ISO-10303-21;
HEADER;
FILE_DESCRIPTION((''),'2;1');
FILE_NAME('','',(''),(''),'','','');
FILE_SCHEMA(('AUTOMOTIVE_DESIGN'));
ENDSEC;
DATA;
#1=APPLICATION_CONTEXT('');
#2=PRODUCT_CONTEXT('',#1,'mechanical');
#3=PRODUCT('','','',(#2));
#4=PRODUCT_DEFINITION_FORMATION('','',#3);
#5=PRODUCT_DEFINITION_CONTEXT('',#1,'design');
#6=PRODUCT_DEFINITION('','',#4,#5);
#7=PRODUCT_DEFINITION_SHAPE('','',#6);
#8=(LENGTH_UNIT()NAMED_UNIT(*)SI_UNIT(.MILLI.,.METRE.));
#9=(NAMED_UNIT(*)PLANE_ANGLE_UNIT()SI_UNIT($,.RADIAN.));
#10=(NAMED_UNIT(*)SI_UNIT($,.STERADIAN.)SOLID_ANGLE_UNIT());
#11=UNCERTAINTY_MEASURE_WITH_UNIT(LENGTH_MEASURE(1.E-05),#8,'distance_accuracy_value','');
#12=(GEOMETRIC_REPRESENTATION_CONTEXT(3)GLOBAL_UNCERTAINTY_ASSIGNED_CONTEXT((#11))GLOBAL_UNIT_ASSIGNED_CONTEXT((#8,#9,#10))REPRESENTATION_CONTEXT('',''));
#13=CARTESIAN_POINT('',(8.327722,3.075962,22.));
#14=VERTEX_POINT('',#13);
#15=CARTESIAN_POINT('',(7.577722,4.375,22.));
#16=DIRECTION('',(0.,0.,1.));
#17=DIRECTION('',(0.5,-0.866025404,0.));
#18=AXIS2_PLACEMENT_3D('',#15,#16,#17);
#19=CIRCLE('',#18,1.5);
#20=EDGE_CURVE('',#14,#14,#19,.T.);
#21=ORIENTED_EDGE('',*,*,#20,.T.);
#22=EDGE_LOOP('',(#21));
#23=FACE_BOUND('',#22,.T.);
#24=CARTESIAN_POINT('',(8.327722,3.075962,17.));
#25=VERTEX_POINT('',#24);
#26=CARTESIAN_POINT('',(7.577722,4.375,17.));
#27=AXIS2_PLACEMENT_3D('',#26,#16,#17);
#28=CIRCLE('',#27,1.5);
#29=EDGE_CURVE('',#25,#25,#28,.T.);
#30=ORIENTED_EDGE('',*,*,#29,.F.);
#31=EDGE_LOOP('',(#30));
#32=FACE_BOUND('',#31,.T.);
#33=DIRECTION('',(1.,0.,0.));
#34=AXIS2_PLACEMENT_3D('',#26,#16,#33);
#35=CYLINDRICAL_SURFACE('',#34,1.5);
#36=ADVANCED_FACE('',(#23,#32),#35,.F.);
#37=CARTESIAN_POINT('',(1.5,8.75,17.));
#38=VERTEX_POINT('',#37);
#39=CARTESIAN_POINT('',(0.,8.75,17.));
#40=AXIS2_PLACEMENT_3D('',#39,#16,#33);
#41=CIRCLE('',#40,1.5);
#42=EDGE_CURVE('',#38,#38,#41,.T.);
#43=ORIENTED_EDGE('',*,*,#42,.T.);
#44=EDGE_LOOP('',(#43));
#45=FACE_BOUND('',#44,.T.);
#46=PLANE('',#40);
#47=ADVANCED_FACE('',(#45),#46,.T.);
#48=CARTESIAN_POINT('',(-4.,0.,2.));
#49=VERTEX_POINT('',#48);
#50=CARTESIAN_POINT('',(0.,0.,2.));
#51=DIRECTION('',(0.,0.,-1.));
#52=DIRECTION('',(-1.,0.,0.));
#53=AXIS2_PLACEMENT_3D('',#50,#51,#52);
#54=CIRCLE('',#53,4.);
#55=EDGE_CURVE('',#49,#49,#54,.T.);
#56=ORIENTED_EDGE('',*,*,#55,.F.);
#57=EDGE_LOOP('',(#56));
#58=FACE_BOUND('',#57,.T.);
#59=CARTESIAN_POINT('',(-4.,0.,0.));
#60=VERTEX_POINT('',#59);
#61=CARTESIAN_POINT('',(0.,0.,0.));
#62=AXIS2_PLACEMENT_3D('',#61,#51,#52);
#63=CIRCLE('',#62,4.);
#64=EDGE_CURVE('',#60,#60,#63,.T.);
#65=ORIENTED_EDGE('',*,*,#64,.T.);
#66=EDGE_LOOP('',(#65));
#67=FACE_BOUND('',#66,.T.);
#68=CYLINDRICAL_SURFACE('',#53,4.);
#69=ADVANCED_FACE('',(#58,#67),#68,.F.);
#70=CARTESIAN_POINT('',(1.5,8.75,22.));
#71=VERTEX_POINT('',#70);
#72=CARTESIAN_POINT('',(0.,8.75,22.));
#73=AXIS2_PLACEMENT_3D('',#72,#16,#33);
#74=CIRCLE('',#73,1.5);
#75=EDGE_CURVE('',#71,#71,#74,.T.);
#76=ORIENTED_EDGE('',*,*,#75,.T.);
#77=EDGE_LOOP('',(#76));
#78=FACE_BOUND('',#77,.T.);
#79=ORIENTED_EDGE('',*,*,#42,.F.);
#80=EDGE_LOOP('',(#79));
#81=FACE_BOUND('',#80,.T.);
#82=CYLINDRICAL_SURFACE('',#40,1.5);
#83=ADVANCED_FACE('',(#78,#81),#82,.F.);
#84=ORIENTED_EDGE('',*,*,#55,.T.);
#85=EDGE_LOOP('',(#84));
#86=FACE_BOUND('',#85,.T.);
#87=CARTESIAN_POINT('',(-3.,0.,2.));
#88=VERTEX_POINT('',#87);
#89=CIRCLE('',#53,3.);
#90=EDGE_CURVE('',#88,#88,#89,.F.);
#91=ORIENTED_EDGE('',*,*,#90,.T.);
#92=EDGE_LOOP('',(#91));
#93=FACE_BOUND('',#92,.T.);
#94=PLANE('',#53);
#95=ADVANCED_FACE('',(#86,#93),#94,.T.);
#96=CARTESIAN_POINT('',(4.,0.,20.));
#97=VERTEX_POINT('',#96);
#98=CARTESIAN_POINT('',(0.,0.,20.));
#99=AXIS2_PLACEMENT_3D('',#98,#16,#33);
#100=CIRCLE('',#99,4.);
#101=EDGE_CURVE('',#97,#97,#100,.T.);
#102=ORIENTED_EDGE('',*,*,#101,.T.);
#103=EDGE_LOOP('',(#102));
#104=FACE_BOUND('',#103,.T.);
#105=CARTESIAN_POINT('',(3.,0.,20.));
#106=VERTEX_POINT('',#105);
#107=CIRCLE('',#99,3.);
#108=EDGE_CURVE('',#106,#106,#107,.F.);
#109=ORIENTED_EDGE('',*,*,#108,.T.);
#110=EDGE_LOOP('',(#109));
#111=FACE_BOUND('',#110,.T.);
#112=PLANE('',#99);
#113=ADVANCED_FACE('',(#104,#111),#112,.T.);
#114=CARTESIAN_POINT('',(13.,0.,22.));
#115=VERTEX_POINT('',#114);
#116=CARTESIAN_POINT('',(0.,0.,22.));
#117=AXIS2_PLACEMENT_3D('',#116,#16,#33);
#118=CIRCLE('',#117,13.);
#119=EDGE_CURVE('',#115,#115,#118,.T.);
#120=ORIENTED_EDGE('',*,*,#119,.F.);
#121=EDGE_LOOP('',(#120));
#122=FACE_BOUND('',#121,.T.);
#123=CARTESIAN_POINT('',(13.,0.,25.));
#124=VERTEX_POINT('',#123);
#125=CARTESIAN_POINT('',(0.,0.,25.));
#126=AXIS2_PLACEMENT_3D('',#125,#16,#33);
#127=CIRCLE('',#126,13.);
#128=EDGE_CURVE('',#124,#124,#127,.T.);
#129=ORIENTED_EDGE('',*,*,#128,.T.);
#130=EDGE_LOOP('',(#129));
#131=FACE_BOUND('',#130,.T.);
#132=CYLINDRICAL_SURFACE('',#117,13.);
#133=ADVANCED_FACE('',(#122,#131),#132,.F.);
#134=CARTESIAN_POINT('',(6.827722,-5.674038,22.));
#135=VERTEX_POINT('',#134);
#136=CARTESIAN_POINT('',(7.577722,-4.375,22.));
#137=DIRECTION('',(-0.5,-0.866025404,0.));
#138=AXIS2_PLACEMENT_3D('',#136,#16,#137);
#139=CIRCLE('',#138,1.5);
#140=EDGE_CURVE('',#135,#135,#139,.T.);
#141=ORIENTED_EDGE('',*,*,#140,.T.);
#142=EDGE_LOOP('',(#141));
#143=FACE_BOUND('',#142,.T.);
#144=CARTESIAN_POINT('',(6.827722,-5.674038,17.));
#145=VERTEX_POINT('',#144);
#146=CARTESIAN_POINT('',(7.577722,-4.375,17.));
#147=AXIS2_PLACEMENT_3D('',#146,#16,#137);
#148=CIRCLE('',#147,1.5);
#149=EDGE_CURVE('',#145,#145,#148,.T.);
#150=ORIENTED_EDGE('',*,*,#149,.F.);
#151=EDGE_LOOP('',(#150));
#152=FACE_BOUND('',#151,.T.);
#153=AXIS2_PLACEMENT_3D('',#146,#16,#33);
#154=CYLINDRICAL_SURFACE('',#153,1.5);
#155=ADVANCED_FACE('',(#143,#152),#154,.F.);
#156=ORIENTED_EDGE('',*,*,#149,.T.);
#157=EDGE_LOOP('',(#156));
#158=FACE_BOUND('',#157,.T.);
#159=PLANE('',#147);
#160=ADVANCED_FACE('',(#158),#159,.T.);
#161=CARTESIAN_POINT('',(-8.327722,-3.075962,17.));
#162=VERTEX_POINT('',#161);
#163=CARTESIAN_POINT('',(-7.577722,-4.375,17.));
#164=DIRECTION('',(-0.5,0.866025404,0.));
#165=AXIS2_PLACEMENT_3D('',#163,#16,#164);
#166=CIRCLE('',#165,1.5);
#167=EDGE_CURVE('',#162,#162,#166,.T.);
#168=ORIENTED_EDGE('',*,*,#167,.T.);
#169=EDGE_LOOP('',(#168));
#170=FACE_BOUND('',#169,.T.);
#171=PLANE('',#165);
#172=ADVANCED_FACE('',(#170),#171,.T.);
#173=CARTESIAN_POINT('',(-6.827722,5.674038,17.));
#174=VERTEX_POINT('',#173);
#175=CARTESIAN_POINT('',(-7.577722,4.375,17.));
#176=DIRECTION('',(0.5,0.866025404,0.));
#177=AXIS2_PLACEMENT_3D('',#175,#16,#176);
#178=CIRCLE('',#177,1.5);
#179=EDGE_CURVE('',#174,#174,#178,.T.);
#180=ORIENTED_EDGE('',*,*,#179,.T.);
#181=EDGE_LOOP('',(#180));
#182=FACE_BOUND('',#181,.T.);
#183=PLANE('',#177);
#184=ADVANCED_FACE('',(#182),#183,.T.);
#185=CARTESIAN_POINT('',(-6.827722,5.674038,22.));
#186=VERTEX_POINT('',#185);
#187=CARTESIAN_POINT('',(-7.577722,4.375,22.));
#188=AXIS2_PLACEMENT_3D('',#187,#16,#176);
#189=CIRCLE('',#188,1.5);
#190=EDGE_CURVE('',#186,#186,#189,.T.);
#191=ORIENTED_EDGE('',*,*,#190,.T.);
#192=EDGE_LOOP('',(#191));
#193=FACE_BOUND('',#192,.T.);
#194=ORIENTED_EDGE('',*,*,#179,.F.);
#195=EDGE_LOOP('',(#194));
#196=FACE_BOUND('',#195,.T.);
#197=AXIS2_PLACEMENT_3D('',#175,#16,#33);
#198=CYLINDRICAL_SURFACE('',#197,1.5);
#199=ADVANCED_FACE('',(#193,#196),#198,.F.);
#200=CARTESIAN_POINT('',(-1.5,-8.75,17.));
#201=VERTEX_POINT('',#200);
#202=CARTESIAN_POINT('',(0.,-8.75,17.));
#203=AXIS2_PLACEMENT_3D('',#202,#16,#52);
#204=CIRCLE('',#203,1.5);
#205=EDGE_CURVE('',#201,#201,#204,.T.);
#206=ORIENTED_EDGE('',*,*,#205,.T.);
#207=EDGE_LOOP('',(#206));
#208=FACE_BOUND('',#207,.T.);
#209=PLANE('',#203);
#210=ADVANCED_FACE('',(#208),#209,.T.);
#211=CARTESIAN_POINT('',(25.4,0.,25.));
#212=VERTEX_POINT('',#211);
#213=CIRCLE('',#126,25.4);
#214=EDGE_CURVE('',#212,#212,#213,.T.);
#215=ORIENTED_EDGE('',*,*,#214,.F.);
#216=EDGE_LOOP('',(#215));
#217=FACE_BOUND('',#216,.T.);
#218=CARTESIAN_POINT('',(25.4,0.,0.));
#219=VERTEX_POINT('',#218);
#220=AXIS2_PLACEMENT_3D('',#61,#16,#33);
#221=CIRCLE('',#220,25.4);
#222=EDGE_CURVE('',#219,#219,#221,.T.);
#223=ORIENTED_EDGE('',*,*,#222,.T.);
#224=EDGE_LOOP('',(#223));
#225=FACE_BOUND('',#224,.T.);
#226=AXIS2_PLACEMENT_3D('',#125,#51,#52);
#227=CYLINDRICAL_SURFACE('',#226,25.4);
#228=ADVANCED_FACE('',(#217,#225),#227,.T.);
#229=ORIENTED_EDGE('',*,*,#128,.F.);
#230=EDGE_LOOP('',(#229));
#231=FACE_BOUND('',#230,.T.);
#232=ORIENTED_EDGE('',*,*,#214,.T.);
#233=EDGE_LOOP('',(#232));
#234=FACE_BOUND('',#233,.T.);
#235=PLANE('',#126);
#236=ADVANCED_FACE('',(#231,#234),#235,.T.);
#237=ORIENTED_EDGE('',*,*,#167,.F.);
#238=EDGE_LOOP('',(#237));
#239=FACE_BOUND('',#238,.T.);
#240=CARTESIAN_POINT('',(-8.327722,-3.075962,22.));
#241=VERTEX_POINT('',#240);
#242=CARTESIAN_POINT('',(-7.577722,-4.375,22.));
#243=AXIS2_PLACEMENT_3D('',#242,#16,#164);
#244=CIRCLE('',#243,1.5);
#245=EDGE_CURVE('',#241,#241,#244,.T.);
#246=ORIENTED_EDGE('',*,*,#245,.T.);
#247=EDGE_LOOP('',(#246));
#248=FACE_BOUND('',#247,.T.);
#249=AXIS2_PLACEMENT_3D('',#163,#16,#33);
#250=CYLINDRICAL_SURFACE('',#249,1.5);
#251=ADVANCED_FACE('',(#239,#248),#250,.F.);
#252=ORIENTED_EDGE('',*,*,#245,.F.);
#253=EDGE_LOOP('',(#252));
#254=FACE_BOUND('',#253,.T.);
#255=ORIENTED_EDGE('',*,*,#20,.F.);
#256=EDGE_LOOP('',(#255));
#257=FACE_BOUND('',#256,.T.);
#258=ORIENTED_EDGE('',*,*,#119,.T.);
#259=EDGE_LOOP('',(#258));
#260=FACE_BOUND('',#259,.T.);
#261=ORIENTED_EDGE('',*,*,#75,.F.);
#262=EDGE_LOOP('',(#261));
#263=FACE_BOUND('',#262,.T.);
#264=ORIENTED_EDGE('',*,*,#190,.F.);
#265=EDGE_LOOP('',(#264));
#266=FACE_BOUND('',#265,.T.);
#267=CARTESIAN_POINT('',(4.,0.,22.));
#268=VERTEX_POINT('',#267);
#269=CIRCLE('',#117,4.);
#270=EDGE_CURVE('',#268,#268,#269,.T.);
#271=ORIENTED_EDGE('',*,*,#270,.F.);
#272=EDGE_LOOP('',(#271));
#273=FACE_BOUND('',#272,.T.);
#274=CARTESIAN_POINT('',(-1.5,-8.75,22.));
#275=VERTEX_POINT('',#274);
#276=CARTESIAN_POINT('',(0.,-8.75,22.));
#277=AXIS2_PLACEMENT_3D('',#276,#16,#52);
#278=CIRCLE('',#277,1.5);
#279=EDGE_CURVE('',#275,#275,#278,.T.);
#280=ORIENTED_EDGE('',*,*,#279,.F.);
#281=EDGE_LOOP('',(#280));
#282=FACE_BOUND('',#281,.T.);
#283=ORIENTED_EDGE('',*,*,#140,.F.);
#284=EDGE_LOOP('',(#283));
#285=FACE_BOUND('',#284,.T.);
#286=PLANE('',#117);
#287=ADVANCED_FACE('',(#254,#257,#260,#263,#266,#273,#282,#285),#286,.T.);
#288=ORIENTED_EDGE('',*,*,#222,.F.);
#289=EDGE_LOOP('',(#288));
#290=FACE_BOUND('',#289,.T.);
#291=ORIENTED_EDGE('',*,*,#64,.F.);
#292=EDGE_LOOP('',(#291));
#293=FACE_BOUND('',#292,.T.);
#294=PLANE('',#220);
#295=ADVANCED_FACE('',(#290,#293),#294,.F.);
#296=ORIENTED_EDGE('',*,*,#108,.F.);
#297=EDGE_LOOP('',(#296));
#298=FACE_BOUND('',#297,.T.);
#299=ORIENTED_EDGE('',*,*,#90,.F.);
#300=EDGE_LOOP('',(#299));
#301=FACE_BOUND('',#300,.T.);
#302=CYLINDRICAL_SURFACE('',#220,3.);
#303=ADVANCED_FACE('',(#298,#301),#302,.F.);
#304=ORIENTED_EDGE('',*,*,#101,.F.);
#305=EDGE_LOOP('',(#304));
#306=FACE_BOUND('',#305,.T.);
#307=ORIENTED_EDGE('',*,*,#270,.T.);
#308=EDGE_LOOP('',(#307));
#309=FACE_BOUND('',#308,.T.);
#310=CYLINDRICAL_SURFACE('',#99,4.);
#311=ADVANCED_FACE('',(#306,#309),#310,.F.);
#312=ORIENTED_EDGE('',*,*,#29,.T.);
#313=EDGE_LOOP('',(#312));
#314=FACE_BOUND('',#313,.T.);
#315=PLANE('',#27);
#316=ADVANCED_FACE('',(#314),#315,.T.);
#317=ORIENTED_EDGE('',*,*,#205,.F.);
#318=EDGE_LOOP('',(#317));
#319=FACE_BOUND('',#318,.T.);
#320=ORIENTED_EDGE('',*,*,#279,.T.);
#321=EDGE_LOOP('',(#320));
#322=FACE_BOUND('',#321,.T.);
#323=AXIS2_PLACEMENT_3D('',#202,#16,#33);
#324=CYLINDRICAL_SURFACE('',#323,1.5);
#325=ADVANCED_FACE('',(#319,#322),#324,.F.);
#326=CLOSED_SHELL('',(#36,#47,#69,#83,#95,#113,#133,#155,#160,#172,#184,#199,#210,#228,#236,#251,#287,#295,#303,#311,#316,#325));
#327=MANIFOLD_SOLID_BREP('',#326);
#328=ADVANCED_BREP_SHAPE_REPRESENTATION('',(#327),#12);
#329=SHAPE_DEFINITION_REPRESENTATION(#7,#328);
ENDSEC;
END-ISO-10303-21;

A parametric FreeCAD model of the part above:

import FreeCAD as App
import Part
import Sketcher
from FreeCAD import Vector

doc = App.newDocument("Part")
body = doc.addObject("PartDesign::Body", "Body")

# Sketch on XY plane
sketch1 = body.newObject("Sketcher::SketchObject", "Sketch")
sketch1.AttachmentSupport = (doc.getObject("XY_Plane"), [""])
sketch1.MapMode = "FlatFace"
sketch1.addGeometry(Part.Circle(Vector(0, 0, 0), Vector(0, 0, 1), 25.4), False)
sketch1.addConstraint([
    Sketcher.Constraint("Coincident", 0, 3, -1, 1),
    Sketcher.Constraint("Diameter", 0, 50.8),
])
pad1 = body.newObject("PartDesign::Pad", "Pad")
pad1.Profile = sketch1
pad1.Length = 25

# Sketch on XY plane
sketch2 = body.newObject("Sketcher::SketchObject", "Sketch001")
sketch2.AttachmentSupport = (doc.getObject("XY_Plane"), [""])
sketch2.MapMode = "FlatFace"
sketch2.AttachmentOffset = App.Placement(Vector(0, 0, 25), App.Rotation())
sketch2.addGeometry(Part.Circle(Vector(0, 0, 0), Vector(0, 0, 1), 3), False)
sketch2.addConstraint([
    Sketcher.Constraint("Coincident", 0, 3, -1, 1),
    Sketcher.Constraint("Diameter", 0, 6.0),
])
pocket1 = body.newObject("PartDesign::Pocket", "Pocket")
pocket1.Profile = sketch2
pocket1.Type = "ThroughAll"

# Sketch on XY plane
sketch3 = body.newObject("Sketcher::SketchObject", "Sketch002")
sketch3.AttachmentSupport = (doc.getObject("XY_Plane"), [""])
sketch3.MapMode = "FlatFace"
sketch3.addGeometry(Part.Circle(Vector(0, 0, 0), Vector(0, 0, 1), 4), False)
sketch3.addConstraint([
    Sketcher.Constraint("Coincident", 0, 3, -1, 1),
    Sketcher.Constraint("Diameter", 0, 8.0),
])
pocket2 = body.newObject("PartDesign::Pocket", "Pocket001")
pocket2.Profile = sketch3
pocket2.Length = 2
pocket2.Reversed = True

# Sketch on XY plane
sketch4 = body.newObject("Sketcher::SketchObject", "Sketch003")
sketch4.AttachmentSupport = (doc.getObject("XY_Plane"), [""])
sketch4.MapMode = "FlatFace"
sketch4.AttachmentOffset = App.Placement(Vector(0, 0, 25), App.Rotation())
sketch4.addGeometry(Part.Circle(Vector(0, 0, 0), Vector(0, 0, 1), 13), False)
sketch4.addConstraint([
    Sketcher.Constraint("Coincident", 0, 3, -1, 1),
    Sketcher.Constraint("Diameter", 0, 26.0),
])
pocket3 = body.newObject("PartDesign::Pocket", "Pocket002")
pocket3.Profile = sketch4
pocket3.Length = 3

# Sketch on XY plane
sketch5 = body.newObject("Sketcher::SketchObject", "Sketch004")
sketch5.AttachmentSupport = (doc.getObject("XY_Plane"), [""])
sketch5.MapMode = "FlatFace"
sketch5.AttachmentOffset = App.Placement(Vector(0, 0, 22), App.Rotation())
sketch5.addGeometry(Part.Circle(Vector(0, 8.75, 0), Vector(0, 0, 1), 1.5), False)
sketch5.addConstraint([
    Sketcher.Constraint("PointOnObject", 0, 3, -2),
    Sketcher.Constraint("Diameter", 0, 3.0),
    Sketcher.Constraint("DistanceY", -1, 1, 0, 3, 8.75),
])
pocket4 = body.newObject("PartDesign::Pocket", "Pocket003")
pocket4.Profile = sketch5
pocket4.Length = 5

# Sketch on XY plane
sketch6 = body.newObject("Sketcher::SketchObject", "Sketch005")
sketch6.AttachmentSupport = (doc.getObject("XY_Plane"), [""])
sketch6.MapMode = "FlatFace"
sketch6.AttachmentOffset = App.Placement(Vector(0, 0, 20), App.Rotation())
sketch6.addGeometry(Part.Circle(Vector(0, 0, 0), Vector(0, 0, 1), 4), False)
sketch6.addConstraint([
    Sketcher.Constraint("Coincident", 0, 3, -1, 1),
    Sketcher.Constraint("Diameter", 0, 8.0),
])
pocket5 = body.newObject("PartDesign::Pocket", "Pocket004")
pocket5.Profile = sketch6
pocket5.Length = 5
pocket5.Reversed = True
doc.recompute()

polarpattern = body.newObject("PartDesign::PolarPattern", "PolarPattern")
polarpattern.Originals = [pocket4]
polarpattern.Axis = (doc.getObject("Z_Axis"), [""])
polarpattern.Angle = 360
polarpattern.Occurrences = 6
body.Tip = polarpattern

doc.recompute()
